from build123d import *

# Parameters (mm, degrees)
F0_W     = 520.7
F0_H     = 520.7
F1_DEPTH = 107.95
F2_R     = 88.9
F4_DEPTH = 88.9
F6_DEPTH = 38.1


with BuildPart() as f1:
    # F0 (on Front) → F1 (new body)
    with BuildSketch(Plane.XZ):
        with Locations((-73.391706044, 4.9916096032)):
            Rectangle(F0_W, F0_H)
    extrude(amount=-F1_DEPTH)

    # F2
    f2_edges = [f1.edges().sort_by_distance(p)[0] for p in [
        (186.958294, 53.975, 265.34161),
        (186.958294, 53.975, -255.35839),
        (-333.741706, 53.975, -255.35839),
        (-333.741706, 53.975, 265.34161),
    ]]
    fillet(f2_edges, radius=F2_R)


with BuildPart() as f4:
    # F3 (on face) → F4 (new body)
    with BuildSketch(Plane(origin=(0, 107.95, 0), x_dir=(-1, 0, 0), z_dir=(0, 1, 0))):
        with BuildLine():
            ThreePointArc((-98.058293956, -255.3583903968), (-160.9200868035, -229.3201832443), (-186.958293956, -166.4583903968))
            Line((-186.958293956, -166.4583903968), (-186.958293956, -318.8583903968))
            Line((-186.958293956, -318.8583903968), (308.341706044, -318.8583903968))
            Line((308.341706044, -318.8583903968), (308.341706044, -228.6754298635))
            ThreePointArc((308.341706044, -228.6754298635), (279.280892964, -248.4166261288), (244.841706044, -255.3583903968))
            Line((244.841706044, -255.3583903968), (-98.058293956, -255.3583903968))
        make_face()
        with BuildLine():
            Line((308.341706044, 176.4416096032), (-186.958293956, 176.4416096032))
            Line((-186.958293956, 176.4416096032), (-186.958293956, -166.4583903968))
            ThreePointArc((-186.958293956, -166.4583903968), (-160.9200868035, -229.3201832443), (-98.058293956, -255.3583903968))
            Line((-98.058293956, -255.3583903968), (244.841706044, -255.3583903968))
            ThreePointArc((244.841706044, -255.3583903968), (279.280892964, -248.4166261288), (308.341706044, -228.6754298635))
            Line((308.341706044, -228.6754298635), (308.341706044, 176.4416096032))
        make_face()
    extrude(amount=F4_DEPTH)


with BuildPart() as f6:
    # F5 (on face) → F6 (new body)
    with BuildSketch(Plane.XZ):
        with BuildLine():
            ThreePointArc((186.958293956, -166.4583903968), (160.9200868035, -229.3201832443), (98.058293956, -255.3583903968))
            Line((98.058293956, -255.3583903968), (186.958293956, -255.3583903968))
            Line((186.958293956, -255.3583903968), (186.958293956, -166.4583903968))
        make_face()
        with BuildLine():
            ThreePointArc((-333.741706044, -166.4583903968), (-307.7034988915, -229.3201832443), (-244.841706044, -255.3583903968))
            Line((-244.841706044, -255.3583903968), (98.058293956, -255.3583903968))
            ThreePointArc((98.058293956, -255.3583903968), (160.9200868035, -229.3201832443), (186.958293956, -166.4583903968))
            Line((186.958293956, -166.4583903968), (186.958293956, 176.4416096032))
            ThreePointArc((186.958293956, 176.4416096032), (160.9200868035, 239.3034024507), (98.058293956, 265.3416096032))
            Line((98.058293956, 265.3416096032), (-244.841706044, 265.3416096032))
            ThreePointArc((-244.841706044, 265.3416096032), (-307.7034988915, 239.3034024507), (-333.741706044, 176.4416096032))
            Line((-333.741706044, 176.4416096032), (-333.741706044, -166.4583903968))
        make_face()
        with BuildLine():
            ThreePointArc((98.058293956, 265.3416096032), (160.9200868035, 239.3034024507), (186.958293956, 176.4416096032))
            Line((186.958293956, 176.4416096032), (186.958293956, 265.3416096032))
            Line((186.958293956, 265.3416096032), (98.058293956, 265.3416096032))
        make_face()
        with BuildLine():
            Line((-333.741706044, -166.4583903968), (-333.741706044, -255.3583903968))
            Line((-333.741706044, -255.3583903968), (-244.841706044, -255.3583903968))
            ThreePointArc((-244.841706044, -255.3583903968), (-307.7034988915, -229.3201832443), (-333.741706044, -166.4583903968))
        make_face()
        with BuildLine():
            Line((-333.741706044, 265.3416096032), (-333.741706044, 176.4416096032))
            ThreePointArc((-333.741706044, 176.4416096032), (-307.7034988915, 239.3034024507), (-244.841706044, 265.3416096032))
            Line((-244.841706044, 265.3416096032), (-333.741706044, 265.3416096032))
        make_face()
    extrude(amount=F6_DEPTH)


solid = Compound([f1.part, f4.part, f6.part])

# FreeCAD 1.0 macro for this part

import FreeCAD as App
import Part
import Sketcher
from FreeCAD import Vector
Q = App.Units.Quantity


def edges_at(feature, points):
    """Names of the edges that pass closest to the given points."""
    edges = feature.Shape.Edges
    near = lambda p: min(range(len(edges)), key=lambda i: edges[i].distToShape(Part.Vertex(*p))[0])
    return sorted({f"Edge{near(p) + 1}" for p in points})

doc = App.newDocument("Part")
body = doc.addObject("PartDesign::Body", "Body")

# Sketch on XZ plane
sketch1 = body.newObject("Sketcher::SketchObject", "Sketch")
sketch1.AttachmentSupport = (doc.getObject("XZ_Plane"), [""])
sketch1.MapMode = "FlatFace"
sketch1.addGeometry([
    Part.LineSegment(Vector(-334, 265, 0), Vector(-334, -255, 0)),
    Part.LineSegment(Vector(-334, -255, 0), Vector(187, -255, 0)),
    Part.LineSegment(Vector(187, -255, 0), Vector(187, 265, 0)),
    Part.LineSegment(Vector(187, 265, 0), Vector(-334, 265, 0)),
], False)
sketch1.addConstraint([
    Sketcher.Constraint("Coincident", 0, 2, 1, 1),
    Sketcher.Constraint("Coincident", 1, 2, 2, 1),
    Sketcher.Constraint("Coincident", 2, 2, 3, 1),
    Sketcher.Constraint("Coincident", 3, 2, 0, 1),
    Sketcher.Constraint("Vertical", 0),
    Sketcher.Constraint("Horizontal", 1),
    Sketcher.Constraint("Vertical", 2),
    Sketcher.Constraint("Horizontal", 3),
    Sketcher.Constraint("Equal", 3, 0),
    Sketcher.Constraint("DistanceX", 1, 1, 1, 2, Q("20.5 in")),
    Sketcher.Constraint("DistanceY", 0, 2, -1, 1, Q("255.35839 mm")),
    Sketcher.Constraint("DistanceX", 0, 2, -1, 1, Q("333.741706 mm")),
])
pad1 = body.newObject("PartDesign::Pad", "Pad")
pad1.Profile = sketch1
pad1.Length = Q("4.25 in")
pad1.Reversed = True
doc.recompute()

fillet = body.newObject("PartDesign::Fillet", "Fillet")
fillet.Base = (pad1, edges_at(pad1, [
    (186.958, 53.975, 265.342),
    (186.958, 53.975, -255.358),
    (-333.742, 53.975, -255.358),
    (-333.742, 53.975, 265.342),
]))
fillet.Radius = Q("3.5 in")
body2 = doc.addObject("PartDesign::Body", "Body001")

# Sketch on XZ plane
sketch2 = body2.newObject("Sketcher::SketchObject", "Sketch001")
sketch2.AttachmentSupport = (doc.getObject("XZ_Plane001"), [""])
sketch2.MapMode = "FlatFace"
sketch2.AttachmentOffset = App.Placement(Vector(0, 0, -4.25 * 25.4), App.Rotation())
sketch2.addGeometry([
    Part.LineSegment(Vector(187, -319, 0), Vector(-308, -319, 0)),
    Part.LineSegment(Vector(-308, -319, 0), Vector(-308, 176, 0)),
    Part.LineSegment(Vector(-308, 176, 0), Vector(187, 176, 0)),
    Part.LineSegment(Vector(187, 176, 0), Vector(187, -319, 0)),
], False)
sketch2.addConstraint([
    Sketcher.Constraint("Coincident", 0, 2, 1, 1),
    Sketcher.Constraint("Coincident", 1, 2, 2, 1),
    Sketcher.Constraint("Coincident", 2, 2, 3, 1),
    Sketcher.Constraint("Coincident", 3, 2, 0, 1),
    Sketcher.Constraint("Horizontal", 0),
    Sketcher.Constraint("Vertical", 1),
    Sketcher.Constraint("Horizontal", 2),
    Sketcher.Constraint("Vertical", 3),
    Sketcher.Constraint("Equal", 2, 1),
    Sketcher.Constraint("DistanceX", 0, 2, 0, 1, Q("19.5 in")),
    Sketcher.Constraint("DistanceY", 0, 2, -1, 1, Q("318.85839 mm")),
    Sketcher.Constraint("DistanceX", 0, 2, -1, 1, Q("308.341706 mm")),
])
pad2 = body2.newObject("PartDesign::Pad", "Pad001")
pad2.Profile = sketch2
pad2.Length = Q("3.5 in")
pad2.Reversed = True
body3 = doc.addObject("PartDesign::Body", "Body002")

# Sketch on XZ plane
sketch3 = body3.newObject("Sketcher::SketchObject", "Sketch002")
sketch3.AttachmentSupport = (doc.getObject("XZ_Plane002"), [""])
sketch3.MapMode = "FlatFace"
sketch3.addGeometry([
    Part.LineSegment(Vector(187, -255, 0), Vector(187, 265, 0)),
    Part.LineSegment(Vector(187, 265, 0), Vector(-334, 265, 0)),
    Part.LineSegment(Vector(-334, 265, 0), Vector(-334, -255, 0)),
    Part.LineSegment(Vector(-334, -255, 0), Vector(187, -255, 0)),
], False)
sketch3.addConstraint([
    Sketcher.Constraint("Coincident", 0, 2, 1, 1),
    Sketcher.Constraint("Coincident", 1, 2, 2, 1),
    Sketcher.Constraint("Coincident", 2, 2, 3, 1),
    Sketcher.Constraint("Coincident", 3, 2, 0, 1),
    Sketcher.Constraint("Vertical", 0),
    Sketcher.Constraint("Horizontal", 1),
    Sketcher.Constraint("Vertical", 2),
    Sketcher.Constraint("Horizontal", 3),
    Sketcher.Constraint("Equal", 3, 0),
    Sketcher.Constraint("DistanceX", 1, 2, 1, 1, Q("20.5 in")),
    Sketcher.Constraint("DistanceY", -1, 1, 0, 2, Q("265.34161 mm")),
    Sketcher.Constraint("DistanceX", -1, 1, 0, 2, Q("186.958294 mm")),
])
pad3 = body3.newObject("PartDesign::Pad", "Pad002")
pad3.Profile = sketch3
pad3.Length = Q("1.5 in")

doc.recompute()
